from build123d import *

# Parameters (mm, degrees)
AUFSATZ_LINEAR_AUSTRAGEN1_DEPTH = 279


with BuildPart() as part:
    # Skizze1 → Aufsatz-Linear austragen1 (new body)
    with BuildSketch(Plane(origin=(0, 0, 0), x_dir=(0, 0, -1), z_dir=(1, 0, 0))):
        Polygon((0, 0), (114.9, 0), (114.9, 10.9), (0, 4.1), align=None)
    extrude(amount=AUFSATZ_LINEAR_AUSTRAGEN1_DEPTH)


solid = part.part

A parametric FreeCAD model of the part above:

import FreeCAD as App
import Part
import Sketcher
from FreeCAD import Vector


def add_polygon(sketch, points):
    """Adds a closed chain of lines whose ends are joined by coincident constraints."""
    first, n = sketch.GeometryCount, len(points)
    for a, b in zip(points, points[1:] + points[:1]):
        sketch.addGeometry(Part.LineSegment(App.Vector(*a, 0), App.Vector(*b, 0)), False)
    for i in range(n):
        sketch.addConstraint(Sketcher.Constraint("Coincident", first + i, 2, first + (i + 1) % n, 1))

doc = App.newDocument("Part")
params = doc.addObject("Spreadsheet::Sheet", "Params")
for row, (alias, value) in enumerate([
    ("sketch1_width", "10.9 mm"),
    ("sketch1_width2", "4.1 mm"),
    ("sketch1_height", "114.9 mm"),
    ("pad1_length", "279 mm"),
], start=1):
    params.set(f"A{row}", alias)
    params.set(f"B{row}", "=" + value)
    params.setAlias(f"B{row}", alias)

body = doc.addObject("PartDesign::Body", "Body")

# Sketch on YZ plane
sketch1 = body.newObject("Sketcher::SketchObject", "Sketch")
sketch1.AttachmentSupport = (doc.getObject("YZ_Plane"), [""])
sketch1.MapMode = "FlatFace"
add_polygon(sketch1, [(0, 0), (0, -114.9), (10.9, -114.9), (4.1, 0)])  # lines 0-3
sketch1.addConstraint([
    Sketcher.Constraint("Vertical", 0),
    Sketcher.Constraint("Horizontal", 1),
    Sketcher.Constraint("Horizontal", 3),
    Sketcher.Constraint("Coincident", 3, 2, -1, 1),
    Sketcher.Constraint("DistanceX", 1, 1, 1, 2, 10.9),
    Sketcher.Constraint("DistanceX", 3, 2, 3, 1, 4.1),
    Sketcher.Constraint("DistanceY", 0, 2, 0, 1, 114.9),
])
sketch1.setExpression("Constraints[8]", "Params.sketch1_width")
sketch1.setExpression("Constraints[9]", "Params.sketch1_width2")
sketch1.setExpression("Constraints[10]", "Params.sketch1_height")
pad1 = body.newObject("PartDesign::Pad", "Pad")
pad1.Profile = sketch1
pad1.setExpression("Length", "Params.pad1_length")

doc.recompute()
